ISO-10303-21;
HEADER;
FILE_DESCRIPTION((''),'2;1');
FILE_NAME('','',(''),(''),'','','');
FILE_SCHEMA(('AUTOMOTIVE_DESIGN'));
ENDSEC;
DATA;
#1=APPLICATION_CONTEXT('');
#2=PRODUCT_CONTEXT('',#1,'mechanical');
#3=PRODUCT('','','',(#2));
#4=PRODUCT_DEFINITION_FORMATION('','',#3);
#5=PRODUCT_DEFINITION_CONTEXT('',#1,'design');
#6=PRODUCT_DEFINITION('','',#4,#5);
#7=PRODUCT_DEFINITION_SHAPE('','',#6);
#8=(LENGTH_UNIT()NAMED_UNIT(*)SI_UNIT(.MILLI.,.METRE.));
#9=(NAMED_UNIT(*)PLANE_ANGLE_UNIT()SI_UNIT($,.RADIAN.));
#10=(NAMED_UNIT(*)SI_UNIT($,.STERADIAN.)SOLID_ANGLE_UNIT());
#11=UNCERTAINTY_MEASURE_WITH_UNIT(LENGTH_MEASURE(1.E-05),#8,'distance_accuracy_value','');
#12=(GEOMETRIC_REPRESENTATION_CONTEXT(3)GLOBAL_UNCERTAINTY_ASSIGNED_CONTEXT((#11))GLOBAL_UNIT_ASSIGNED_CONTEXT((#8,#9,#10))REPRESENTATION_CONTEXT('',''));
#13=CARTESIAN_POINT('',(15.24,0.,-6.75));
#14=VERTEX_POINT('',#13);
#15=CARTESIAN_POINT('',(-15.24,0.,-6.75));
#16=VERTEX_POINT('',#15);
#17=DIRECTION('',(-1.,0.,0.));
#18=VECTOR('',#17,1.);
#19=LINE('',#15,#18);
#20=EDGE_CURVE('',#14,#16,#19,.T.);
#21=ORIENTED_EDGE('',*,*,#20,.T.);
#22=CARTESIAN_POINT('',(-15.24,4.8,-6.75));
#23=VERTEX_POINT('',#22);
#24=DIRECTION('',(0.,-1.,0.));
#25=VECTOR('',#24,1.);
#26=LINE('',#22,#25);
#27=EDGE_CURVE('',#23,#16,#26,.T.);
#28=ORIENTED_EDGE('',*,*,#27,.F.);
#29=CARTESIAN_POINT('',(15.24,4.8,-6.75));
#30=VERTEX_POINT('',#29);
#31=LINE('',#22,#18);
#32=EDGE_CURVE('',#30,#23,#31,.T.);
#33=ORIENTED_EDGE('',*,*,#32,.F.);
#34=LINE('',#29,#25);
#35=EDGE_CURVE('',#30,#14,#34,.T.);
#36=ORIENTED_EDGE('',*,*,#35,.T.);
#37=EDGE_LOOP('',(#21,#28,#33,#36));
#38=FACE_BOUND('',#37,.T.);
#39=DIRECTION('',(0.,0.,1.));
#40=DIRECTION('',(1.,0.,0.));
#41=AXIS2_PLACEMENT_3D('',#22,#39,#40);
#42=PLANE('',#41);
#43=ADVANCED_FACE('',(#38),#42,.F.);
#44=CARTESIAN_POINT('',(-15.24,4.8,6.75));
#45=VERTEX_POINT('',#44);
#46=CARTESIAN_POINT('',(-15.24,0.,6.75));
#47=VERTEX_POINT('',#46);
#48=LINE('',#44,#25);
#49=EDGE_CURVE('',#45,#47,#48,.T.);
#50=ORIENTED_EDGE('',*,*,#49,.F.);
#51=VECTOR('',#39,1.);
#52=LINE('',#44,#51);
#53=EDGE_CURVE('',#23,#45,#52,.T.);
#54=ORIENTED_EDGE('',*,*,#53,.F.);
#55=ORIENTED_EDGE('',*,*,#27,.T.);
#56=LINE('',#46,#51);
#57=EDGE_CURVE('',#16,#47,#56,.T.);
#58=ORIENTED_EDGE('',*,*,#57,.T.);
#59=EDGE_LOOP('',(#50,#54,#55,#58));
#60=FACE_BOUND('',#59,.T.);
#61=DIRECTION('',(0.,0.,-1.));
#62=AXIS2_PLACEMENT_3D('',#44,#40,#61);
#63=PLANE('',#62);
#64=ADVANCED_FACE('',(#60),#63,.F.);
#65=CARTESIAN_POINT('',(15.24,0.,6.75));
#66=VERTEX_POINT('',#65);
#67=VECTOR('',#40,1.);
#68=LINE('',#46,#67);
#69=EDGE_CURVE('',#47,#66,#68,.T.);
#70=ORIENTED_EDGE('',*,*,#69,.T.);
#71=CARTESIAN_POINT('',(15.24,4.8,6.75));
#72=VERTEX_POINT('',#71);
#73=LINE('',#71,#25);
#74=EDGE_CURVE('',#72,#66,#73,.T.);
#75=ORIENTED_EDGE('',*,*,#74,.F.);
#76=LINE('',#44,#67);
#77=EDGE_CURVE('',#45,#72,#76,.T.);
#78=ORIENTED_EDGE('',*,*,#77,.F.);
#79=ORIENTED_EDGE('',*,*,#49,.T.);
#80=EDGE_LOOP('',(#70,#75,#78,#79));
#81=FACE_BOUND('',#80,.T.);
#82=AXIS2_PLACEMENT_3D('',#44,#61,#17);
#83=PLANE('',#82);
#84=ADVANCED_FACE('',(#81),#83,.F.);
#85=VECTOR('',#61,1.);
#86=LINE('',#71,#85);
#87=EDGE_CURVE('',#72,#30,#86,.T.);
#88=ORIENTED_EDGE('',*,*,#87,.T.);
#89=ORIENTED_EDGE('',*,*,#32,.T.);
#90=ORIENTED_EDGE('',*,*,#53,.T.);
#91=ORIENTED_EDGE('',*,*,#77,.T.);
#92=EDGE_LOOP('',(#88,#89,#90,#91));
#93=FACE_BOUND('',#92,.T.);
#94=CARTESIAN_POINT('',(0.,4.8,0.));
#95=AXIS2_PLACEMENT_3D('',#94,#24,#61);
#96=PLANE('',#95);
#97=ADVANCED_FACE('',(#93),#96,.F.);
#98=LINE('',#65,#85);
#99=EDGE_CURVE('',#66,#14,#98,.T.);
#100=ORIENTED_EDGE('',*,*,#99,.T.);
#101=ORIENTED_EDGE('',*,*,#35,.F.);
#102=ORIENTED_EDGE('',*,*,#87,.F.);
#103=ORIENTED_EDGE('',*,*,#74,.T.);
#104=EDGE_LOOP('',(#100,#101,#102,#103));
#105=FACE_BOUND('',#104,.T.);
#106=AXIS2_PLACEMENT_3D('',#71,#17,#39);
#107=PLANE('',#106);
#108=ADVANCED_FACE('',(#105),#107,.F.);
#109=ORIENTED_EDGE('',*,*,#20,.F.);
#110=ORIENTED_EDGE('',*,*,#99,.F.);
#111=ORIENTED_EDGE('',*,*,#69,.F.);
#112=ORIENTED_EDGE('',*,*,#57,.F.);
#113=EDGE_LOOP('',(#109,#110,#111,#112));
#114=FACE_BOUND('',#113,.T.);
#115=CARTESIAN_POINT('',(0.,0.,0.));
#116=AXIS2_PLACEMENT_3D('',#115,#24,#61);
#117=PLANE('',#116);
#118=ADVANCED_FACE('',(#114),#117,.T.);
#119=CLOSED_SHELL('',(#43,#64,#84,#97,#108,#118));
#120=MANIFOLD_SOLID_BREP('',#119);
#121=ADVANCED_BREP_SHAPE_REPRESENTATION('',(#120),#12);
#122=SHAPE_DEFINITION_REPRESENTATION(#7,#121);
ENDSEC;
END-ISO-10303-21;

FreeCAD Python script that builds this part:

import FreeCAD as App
import Part
import Sketcher


def add_polygon(sketch, points):
    """Adds a closed chain of lines whose ends are joined by coincident constraints."""
    first, n = sketch.GeometryCount, len(points)
    for a, b in zip(points, points[1:] + points[:1]):
        sketch.addGeometry(Part.LineSegment(App.Vector(*a, 0), App.Vector(*b, 0)), False)
    for i in range(n):
        sketch.addConstraint(Sketcher.Constraint("Coincident", first + i, 2, first + (i + 1) % n, 1))

doc = App.newDocument("Part")
body = doc.addObject("PartDesign::Body", "Body")

sketch1 = doc.addObject("Sketcher::SketchObject", "Sketch")
body.addObject(sketch1)
sketch1.AttachmentSupport = (doc.XZ_Plane, [""])
sketch1.MapMode = "FlatFace"
add_polygon(sketch1, [(-15, -7), (-15, 7), (15, 7), (15, -7)])
sketch1.addConstraint(Sketcher.Constraint("Vertical", 0))
sketch1.addConstraint(Sketcher.Constraint("Horizontal", 1))
sketch1.addConstraint(Sketcher.Constraint("Vertical", 2))
sketch1.addConstraint(Sketcher.Constraint("Horizontal", 3))
sketch1.addConstraint(Sketcher.Constraint("Symmetric", 0, 2, 2, 2, -1, 1))
sketch1.addConstraint(Sketcher.Constraint("DistanceY", 0, 1, 0, 2, 13.5))
sketch1.addConstraint(Sketcher.Constraint("DistanceX", 1, 1, 1, 2, 30.48))
pad1 = doc.addObject("PartDesign::Pad", "Pad")
body.addObject(pad1)
pad1.Profile = sketch1
pad1.Length = 4.8
pad1.Reversed = True

doc.recompute()
